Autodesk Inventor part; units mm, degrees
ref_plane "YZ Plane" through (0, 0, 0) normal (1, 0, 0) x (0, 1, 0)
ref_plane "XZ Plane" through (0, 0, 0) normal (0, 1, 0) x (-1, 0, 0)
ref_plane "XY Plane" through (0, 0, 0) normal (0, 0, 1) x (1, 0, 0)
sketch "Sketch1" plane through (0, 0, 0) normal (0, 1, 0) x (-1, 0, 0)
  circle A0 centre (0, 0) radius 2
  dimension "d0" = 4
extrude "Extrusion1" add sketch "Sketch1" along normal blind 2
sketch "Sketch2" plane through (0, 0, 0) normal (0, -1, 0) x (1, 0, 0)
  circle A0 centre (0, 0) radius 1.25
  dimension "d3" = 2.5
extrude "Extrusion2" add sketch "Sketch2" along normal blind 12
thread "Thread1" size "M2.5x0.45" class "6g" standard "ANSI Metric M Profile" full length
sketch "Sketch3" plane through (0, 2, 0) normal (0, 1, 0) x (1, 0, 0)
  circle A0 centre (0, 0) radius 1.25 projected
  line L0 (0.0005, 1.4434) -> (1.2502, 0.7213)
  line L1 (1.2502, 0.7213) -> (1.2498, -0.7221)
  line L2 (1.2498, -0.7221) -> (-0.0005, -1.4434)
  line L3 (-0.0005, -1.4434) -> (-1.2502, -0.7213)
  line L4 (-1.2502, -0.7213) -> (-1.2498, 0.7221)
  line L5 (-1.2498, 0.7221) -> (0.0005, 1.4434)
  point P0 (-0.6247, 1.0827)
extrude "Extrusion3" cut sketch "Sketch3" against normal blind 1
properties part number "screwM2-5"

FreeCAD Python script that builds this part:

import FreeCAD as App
import Part
import Sketcher

V = App.Vector
Q = App.Units.Quantity

doc = App.newDocument("Part")
body = doc.addObject("PartDesign::Body", "Body")

sketch1 = doc.addObject("Sketcher::SketchObject", "Sketch")
body.addObject(sketch1)
sketch1.AttachmentSupport = (doc.XZ_Plane, [""])
sketch1.MapMode = "FlatFace"
sketch1.addGeometry(Part.Circle(V(0, 0, 0), V(0, 0, 1), 2), False)
sketch1.addConstraint(Sketcher.Constraint("Coincident", 0, 3, -1, 1))
sketch1.addConstraint(Sketcher.Constraint("Diameter", 0, 4.0))
pad1 = doc.addObject("PartDesign::Pad", "Pad")
body.addObject(pad1)
pad1.Profile = sketch1
pad1.Length = 2
pad1.Reversed = True

sketch2 = doc.addObject("Sketcher::SketchObject", "Sketch001")
body.addObject(sketch2)
sketch2.AttachmentSupport = (doc.XZ_Plane, [""])
sketch2.MapMode = "FlatFace"
sketch2.addGeometry(Part.Circle(V(0, 0, 0), V(0, 0, 1), 1.2), False)
sketch2.addConstraint(Sketcher.Constraint("Coincident", 0, 3, -1, 1))
sketch2.addConstraint(Sketcher.Constraint("Diameter", 0, 2.5))
pad2 = doc.addObject("PartDesign::Pad", "Pad001")
body.addObject(pad2)
pad2.Profile = sketch2
pad2.Length = 12

sketch3 = doc.addObject("Sketcher::SketchObject", "Sketch002")
body.addObject(sketch3)
sketch3.AttachmentSupport = (doc.XZ_Plane, [""])
sketch3.MapMode = "FlatFace"
sketch3.AttachmentOffset = App.Placement(V(0, 0, -2), App.Rotation())
sketch3.addGeometry(Part.LineSegment(V(1.2, 0.7, 0), V(1.3, -0.7, 0)), False)
sketch3.addGeometry(Part.LineSegment(V(1.3, -0.7, 0), V(0, -1.4, 0)), False)
sketch3.addGeometry(Part.LineSegment(V(0, -1.4, 0), V(-1.2, -0.7, 0)), False)
sketch3.addGeometry(Part.LineSegment(V(-1.2, -0.7, 0), V(-1.3, 0.7, 0)), False)
sketch3.addGeometry(Part.LineSegment(V(-1.3, 0.7, 0), V(0, 1.4, 0)), False)
sketch3.addGeometry(Part.LineSegment(V(0, 1.4, 0), V(1.2, 0.7, 0)), False)
sketch3.addConstraint(Sketcher.Constraint("Coincident", 0, 2, 1, 1))
sketch3.addConstraint(Sketcher.Constraint("Coincident", 1, 2, 2, 1))
sketch3.addConstraint(Sketcher.Constraint("Coincident", 2, 2, 3, 1))
sketch3.addConstraint(Sketcher.Constraint("Coincident", 3, 2, 4, 1))
sketch3.addConstraint(Sketcher.Constraint("Coincident", 4, 2, 5, 1))
sketch3.addConstraint(Sketcher.Constraint("Coincident", 5, 2, 0, 1))
sketch3.addConstraint(Sketcher.Constraint("Symmetric", 0, 2, 3, 2, -1, 1))
sketch3.addConstraint(Sketcher.Constraint("Symmetric", 1, 2, 4, 2, -1, 1))
sketch3.addConstraint(Sketcher.Constraint("Symmetric", 2, 2, 5, 2, -1, 1))
sketch3.addConstraint(Sketcher.Constraint("Equal", 0, 1))
sketch3.addConstraint(Sketcher.Constraint("Equal", 1, 2))
sketch3.addConstraint(Sketcher.Constraint("Angle", 1, Q("-149.9799 deg")))
sketch3.addConstraint(Sketcher.Constraint("Angle", 2, Q("150.0193 deg")))
sketch3.addConstraint(Sketcher.Constraint("DistanceX", 2, 2, 0, 2, 2.5))
sketch3.addConstraint(Sketcher.Constraint("DistanceX", 4, 2, 1, 2, 0.001))
pocket1 = doc.addObject("PartDesign::Pocket", "Pocket")
body.addObject(pocket1)
pocket1.Profile = sketch3
pocket1.Length = 1
pocket1.Reversed = True

doc.recompute()
